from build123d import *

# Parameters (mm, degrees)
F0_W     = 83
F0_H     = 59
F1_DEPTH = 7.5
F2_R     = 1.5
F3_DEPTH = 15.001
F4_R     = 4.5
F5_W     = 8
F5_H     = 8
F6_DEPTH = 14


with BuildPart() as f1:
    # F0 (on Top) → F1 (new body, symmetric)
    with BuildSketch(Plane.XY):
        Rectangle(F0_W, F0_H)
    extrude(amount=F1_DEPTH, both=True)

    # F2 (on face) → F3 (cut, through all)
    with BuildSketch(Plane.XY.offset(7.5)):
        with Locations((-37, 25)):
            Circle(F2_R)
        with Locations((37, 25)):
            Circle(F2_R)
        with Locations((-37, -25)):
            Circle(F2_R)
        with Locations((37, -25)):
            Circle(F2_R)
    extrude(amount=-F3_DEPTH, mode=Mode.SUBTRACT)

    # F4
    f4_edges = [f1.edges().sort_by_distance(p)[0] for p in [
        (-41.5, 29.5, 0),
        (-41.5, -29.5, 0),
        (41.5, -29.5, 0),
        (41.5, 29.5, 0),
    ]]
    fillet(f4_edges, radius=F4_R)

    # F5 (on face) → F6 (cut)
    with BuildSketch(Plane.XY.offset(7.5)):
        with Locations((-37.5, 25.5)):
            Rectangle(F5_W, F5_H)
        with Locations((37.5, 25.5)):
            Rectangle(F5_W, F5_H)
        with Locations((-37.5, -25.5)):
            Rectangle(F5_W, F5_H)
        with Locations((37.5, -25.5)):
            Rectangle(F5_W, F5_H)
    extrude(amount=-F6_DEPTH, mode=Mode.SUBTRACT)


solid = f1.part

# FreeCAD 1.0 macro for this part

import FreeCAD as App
import Part
import Sketcher
Q = App.Units.Quantity


def edges_at(feature, points):
    """Names of the edges that pass closest to the given points."""
    edges = feature.Shape.Edges
    near = lambda p: min(range(len(edges)), key=lambda i: edges[i].distToShape(Part.Vertex(*p))[0])
    return sorted({f"Edge{near(p) + 1}" for p in points})


def add_polygon(sketch, points):
    """Adds a closed chain of lines whose ends are joined by coincident constraints."""
    first, n = sketch.GeometryCount, len(points)
    for a, b in zip(points, points[1:] + points[:1]):
        sketch.addGeometry(Part.LineSegment(App.Vector(*a, 0), App.Vector(*b, 0)), False)
    for i in range(n):
        sketch.addConstraint(Sketcher.Constraint("Coincident", first + i, 2, first + (i + 1) % n, 1))

doc = App.newDocument("Part")
body = doc.addObject("PartDesign::Body", "Body")

sketch1 = doc.addObject("Sketcher::SketchObject", "Sketch")
body.addObject(sketch1)
sketch1.AttachmentSupport = (doc.XY_Plane, [""])
sketch1.MapMode = "FlatFace"
add_polygon(sketch1, [(-42, 30), (-42, -30), (42, -30), (42, 30)])
sketch1.addConstraint([
    Sketcher.Constraint("Vertical", 0),
    Sketcher.Constraint("Horizontal", 1),
    Sketcher.Constraint("Vertical", 2),
    Sketcher.Constraint("Horizontal", 3),
    Sketcher.Constraint("Symmetric", 0, 2, 2, 2, -1, 1),
    Sketcher.Constraint("DistanceX", 1, 1, 1, 2, Q("83 mm")),
    Sketcher.Constraint("DistanceY", 0, 2, 0, 1, Q("59 mm")),
])
pad1 = doc.addObject("PartDesign::Pad", "Pad")
body.addObject(pad1)
pad1.Profile = sketch1
pad1.Length = 15
pad1.Midplane = True

sketch2 = doc.addObject("Sketcher::SketchObject", "Sketch001")
body.addObject(sketch2)
sketch2.AttachmentSupport = (doc.XY_Plane, [""])
sketch2.MapMode = "FlatFace"
sketch2.AttachmentOffset = App.Placement(App.Vector(0, 0, 7.5), App.Rotation())
sketch2.addGeometry([
    Part.Circle(App.Vector(-37, 25, 0), App.Vector(0, 0, 1), 1.5),
    Part.Circle(App.Vector(37, 25, 0), App.Vector(0, 0, 1), 1.5),
    Part.Circle(App.Vector(-37, -25, 0), App.Vector(0, 0, 1), 1.5),
    Part.Circle(App.Vector(37, -25, 0), App.Vector(0, 0, 1), 1.5),
], False)
sketch2.addConstraint([
    Sketcher.Constraint("Equal", 0, 1),
    Sketcher.Constraint("Equal", 1, 2),
    Sketcher.Constraint("Equal", 2, 3),
    Sketcher.Constraint("Symmetric", 1, 3, 2, 3, -1, 1),
    Sketcher.Constraint("Symmetric", 0, 3, 3, 3, -1, 1),
    Sketcher.Constraint("Symmetric", 0, 3, 1, 3, -2),
    Sketcher.Constraint("Diameter", 0, Q("3 mm")),
    Sketcher.Constraint("DistanceX", 0, 3, -1, 1, Q("37 mm")),
    Sketcher.Constraint("DistanceY", -1, 1, 0, 3, Q("25 mm")),
])
pocket1 = doc.addObject("PartDesign::Pocket", "Pocket")
body.addObject(pocket1)
pocket1.Profile = sketch2
pocket1.Type = "ThroughAll"
doc.recompute()

fillet = doc.addObject("PartDesign::Fillet", "Fillet")
body.addObject(fillet)
fillet.Base = (pocket1, edges_at(pocket1, [
    (-41.5, 29.5, 0),
    (-41.5, -29.5, 0),
    (41.5, -29.5, 0),
    (41.5, 29.5, 0),
]))
fillet.Radius = 4.5

sketch3 = doc.addObject("Sketcher::SketchObject", "Sketch002")
body.addObject(sketch3)
sketch3.AttachmentSupport = (doc.XY_Plane, [""])
sketch3.MapMode = "FlatFace"
sketch3.AttachmentOffset = App.Placement(App.Vector(0, 0, 7.5), App.Rotation())
add_polygon(sketch3, [(-42, 30), (-42, 22), (-34, 22), (-34, 30)])
add_polygon(sketch3, [(34, 30), (34, 22), (42, 22), (42, 30)])
add_polygon(sketch3, [(-42, -22), (-42, -30), (-34, -30), (-34, -22)])
add_polygon(sketch3, [(34, -22), (34, -30), (42, -30), (42, -22)])
sketch3.addConstraint([
    Sketcher.Constraint("Vertical", 0),
    Sketcher.Constraint("Horizontal", 1),
    Sketcher.Constraint("Vertical", 2),
    Sketcher.Constraint("Horizontal", 3),
    Sketcher.Constraint("Vertical", 4),
    Sketcher.Constraint("Horizontal", 5),
    Sketcher.Constraint("Vertical", 6),
    Sketcher.Constraint("Horizontal", 7),
    Sketcher.Constraint("Vertical", 8),
    Sketcher.Constraint("Horizontal", 9),
    Sketcher.Constraint("Vertical", 10),
    Sketcher.Constraint("Horizontal", 11),
    Sketcher.Constraint("Vertical", 12),
    Sketcher.Constraint("Horizontal", 13),
    Sketcher.Constraint("Vertical", 14),
    Sketcher.Constraint("Horizontal", 15),
    Sketcher.Constraint("Symmetric", 6, 2, 8, 2, -1, 1),
    Sketcher.Constraint("Symmetric", 4, 2, 10, 2, -1, 1),
    Sketcher.Constraint("Symmetric", 2, 2, 12, 2, -1, 1),
    Sketcher.Constraint("Symmetric", 0, 2, 14, 2, -1, 1),
    Sketcher.Constraint("Symmetric", 1, 2, 4, 2, -2),
    Sketcher.Constraint("Symmetric", 3, 2, 6, 2, -2),
    Sketcher.Constraint("Equal", 15, 0),
    Sketcher.Constraint("DistanceX", 1, 1, 1, 2, Q("8 mm")),
    Sketcher.Constraint("DistanceX", 1, 2, 4, 2, Q("67 mm")),
    Sketcher.Constraint("DistanceY", 8, 2, 0, 2, Q("51 mm")),
])
pocket2 = doc.addObject("PartDesign::Pocket", "Pocket001")
body.addObject(pocket2)
pocket2.Profile = sketch3
pocket2.Length = 14

doc.recompute()
